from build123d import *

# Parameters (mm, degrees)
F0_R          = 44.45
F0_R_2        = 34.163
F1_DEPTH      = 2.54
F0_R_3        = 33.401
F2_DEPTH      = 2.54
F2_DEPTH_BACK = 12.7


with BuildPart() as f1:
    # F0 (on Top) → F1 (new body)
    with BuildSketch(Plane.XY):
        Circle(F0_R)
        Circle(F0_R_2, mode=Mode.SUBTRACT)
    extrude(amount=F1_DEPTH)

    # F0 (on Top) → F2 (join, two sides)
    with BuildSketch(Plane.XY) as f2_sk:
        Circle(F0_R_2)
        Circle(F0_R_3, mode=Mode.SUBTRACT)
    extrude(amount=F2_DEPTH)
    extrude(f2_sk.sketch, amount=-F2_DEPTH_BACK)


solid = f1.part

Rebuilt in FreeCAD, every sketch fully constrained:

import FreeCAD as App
import Part
import Sketcher
Q = App.Units.Quantity

doc = App.newDocument("Part")
body = doc.addObject("PartDesign::Body", "Body")

# Sketch on XY plane
sketch1 = doc.addObject("Sketcher::SketchObject", "Sketch")
body.addObject(sketch1)
sketch1.AttachmentSupport = (doc.XY_Plane, [""])
sketch1.MapMode = "FlatFace"
sketch1.addGeometry(Part.Circle(App.Vector(0, 0, 0), App.Vector(0, 0, 1), 44), False)
sketch1.addGeometry(Part.Circle(App.Vector(0, 0, 0), App.Vector(0, 0, 1), 34), False)
sketch1.addConstraint(Sketcher.Constraint("Coincident", 0, 3, -1, 1))
sketch1.addConstraint(Sketcher.Constraint("Coincident", 1, 3, -1, 1))
sketch1.addConstraint(Sketcher.Constraint("Diameter", 0, Q("3.5 in")))
sketch1.addConstraint(Sketcher.Constraint("Diameter", 1, Q("2.69 in")))
pad1 = doc.addObject("PartDesign::Pad", "Pad")
body.addObject(pad1)
pad1.Profile = sketch1
pad1.Length = Q("0.1 in")

# Sketch on XY plane
sketch2 = doc.addObject("Sketcher::SketchObject", "Sketch001")
body.addObject(sketch2)
sketch2.AttachmentSupport = (doc.XY_Plane, [""])
sketch2.MapMode = "FlatFace"
sketch2.addGeometry(Part.Circle(App.Vector(0, 0, 0), App.Vector(0, 0, 1), 34), False)
sketch2.addGeometry(Part.Circle(App.Vector(0, 0, 0), App.Vector(0, 0, 1), 33), False)
sketch2.addConstraint(Sketcher.Constraint("Coincident", 0, 3, -1, 1))
sketch2.addConstraint(Sketcher.Constraint("Coincident", 1, 3, -1, 1))
sketch2.addConstraint(Sketcher.Constraint("Diameter", 0, Q("2.69 in")))
sketch2.addConstraint(Sketcher.Constraint("Diameter", 1, Q("2.63 in")))
pad2 = doc.addObject("PartDesign::Pad", "Pad001")
body.addObject(pad2)
pad2.Profile = sketch2
pad2.Type = "TwoLengths"
pad2.Length = Q("0.1 in")
pad2.Length2 = Q("0.5 in")

doc.recompute()
